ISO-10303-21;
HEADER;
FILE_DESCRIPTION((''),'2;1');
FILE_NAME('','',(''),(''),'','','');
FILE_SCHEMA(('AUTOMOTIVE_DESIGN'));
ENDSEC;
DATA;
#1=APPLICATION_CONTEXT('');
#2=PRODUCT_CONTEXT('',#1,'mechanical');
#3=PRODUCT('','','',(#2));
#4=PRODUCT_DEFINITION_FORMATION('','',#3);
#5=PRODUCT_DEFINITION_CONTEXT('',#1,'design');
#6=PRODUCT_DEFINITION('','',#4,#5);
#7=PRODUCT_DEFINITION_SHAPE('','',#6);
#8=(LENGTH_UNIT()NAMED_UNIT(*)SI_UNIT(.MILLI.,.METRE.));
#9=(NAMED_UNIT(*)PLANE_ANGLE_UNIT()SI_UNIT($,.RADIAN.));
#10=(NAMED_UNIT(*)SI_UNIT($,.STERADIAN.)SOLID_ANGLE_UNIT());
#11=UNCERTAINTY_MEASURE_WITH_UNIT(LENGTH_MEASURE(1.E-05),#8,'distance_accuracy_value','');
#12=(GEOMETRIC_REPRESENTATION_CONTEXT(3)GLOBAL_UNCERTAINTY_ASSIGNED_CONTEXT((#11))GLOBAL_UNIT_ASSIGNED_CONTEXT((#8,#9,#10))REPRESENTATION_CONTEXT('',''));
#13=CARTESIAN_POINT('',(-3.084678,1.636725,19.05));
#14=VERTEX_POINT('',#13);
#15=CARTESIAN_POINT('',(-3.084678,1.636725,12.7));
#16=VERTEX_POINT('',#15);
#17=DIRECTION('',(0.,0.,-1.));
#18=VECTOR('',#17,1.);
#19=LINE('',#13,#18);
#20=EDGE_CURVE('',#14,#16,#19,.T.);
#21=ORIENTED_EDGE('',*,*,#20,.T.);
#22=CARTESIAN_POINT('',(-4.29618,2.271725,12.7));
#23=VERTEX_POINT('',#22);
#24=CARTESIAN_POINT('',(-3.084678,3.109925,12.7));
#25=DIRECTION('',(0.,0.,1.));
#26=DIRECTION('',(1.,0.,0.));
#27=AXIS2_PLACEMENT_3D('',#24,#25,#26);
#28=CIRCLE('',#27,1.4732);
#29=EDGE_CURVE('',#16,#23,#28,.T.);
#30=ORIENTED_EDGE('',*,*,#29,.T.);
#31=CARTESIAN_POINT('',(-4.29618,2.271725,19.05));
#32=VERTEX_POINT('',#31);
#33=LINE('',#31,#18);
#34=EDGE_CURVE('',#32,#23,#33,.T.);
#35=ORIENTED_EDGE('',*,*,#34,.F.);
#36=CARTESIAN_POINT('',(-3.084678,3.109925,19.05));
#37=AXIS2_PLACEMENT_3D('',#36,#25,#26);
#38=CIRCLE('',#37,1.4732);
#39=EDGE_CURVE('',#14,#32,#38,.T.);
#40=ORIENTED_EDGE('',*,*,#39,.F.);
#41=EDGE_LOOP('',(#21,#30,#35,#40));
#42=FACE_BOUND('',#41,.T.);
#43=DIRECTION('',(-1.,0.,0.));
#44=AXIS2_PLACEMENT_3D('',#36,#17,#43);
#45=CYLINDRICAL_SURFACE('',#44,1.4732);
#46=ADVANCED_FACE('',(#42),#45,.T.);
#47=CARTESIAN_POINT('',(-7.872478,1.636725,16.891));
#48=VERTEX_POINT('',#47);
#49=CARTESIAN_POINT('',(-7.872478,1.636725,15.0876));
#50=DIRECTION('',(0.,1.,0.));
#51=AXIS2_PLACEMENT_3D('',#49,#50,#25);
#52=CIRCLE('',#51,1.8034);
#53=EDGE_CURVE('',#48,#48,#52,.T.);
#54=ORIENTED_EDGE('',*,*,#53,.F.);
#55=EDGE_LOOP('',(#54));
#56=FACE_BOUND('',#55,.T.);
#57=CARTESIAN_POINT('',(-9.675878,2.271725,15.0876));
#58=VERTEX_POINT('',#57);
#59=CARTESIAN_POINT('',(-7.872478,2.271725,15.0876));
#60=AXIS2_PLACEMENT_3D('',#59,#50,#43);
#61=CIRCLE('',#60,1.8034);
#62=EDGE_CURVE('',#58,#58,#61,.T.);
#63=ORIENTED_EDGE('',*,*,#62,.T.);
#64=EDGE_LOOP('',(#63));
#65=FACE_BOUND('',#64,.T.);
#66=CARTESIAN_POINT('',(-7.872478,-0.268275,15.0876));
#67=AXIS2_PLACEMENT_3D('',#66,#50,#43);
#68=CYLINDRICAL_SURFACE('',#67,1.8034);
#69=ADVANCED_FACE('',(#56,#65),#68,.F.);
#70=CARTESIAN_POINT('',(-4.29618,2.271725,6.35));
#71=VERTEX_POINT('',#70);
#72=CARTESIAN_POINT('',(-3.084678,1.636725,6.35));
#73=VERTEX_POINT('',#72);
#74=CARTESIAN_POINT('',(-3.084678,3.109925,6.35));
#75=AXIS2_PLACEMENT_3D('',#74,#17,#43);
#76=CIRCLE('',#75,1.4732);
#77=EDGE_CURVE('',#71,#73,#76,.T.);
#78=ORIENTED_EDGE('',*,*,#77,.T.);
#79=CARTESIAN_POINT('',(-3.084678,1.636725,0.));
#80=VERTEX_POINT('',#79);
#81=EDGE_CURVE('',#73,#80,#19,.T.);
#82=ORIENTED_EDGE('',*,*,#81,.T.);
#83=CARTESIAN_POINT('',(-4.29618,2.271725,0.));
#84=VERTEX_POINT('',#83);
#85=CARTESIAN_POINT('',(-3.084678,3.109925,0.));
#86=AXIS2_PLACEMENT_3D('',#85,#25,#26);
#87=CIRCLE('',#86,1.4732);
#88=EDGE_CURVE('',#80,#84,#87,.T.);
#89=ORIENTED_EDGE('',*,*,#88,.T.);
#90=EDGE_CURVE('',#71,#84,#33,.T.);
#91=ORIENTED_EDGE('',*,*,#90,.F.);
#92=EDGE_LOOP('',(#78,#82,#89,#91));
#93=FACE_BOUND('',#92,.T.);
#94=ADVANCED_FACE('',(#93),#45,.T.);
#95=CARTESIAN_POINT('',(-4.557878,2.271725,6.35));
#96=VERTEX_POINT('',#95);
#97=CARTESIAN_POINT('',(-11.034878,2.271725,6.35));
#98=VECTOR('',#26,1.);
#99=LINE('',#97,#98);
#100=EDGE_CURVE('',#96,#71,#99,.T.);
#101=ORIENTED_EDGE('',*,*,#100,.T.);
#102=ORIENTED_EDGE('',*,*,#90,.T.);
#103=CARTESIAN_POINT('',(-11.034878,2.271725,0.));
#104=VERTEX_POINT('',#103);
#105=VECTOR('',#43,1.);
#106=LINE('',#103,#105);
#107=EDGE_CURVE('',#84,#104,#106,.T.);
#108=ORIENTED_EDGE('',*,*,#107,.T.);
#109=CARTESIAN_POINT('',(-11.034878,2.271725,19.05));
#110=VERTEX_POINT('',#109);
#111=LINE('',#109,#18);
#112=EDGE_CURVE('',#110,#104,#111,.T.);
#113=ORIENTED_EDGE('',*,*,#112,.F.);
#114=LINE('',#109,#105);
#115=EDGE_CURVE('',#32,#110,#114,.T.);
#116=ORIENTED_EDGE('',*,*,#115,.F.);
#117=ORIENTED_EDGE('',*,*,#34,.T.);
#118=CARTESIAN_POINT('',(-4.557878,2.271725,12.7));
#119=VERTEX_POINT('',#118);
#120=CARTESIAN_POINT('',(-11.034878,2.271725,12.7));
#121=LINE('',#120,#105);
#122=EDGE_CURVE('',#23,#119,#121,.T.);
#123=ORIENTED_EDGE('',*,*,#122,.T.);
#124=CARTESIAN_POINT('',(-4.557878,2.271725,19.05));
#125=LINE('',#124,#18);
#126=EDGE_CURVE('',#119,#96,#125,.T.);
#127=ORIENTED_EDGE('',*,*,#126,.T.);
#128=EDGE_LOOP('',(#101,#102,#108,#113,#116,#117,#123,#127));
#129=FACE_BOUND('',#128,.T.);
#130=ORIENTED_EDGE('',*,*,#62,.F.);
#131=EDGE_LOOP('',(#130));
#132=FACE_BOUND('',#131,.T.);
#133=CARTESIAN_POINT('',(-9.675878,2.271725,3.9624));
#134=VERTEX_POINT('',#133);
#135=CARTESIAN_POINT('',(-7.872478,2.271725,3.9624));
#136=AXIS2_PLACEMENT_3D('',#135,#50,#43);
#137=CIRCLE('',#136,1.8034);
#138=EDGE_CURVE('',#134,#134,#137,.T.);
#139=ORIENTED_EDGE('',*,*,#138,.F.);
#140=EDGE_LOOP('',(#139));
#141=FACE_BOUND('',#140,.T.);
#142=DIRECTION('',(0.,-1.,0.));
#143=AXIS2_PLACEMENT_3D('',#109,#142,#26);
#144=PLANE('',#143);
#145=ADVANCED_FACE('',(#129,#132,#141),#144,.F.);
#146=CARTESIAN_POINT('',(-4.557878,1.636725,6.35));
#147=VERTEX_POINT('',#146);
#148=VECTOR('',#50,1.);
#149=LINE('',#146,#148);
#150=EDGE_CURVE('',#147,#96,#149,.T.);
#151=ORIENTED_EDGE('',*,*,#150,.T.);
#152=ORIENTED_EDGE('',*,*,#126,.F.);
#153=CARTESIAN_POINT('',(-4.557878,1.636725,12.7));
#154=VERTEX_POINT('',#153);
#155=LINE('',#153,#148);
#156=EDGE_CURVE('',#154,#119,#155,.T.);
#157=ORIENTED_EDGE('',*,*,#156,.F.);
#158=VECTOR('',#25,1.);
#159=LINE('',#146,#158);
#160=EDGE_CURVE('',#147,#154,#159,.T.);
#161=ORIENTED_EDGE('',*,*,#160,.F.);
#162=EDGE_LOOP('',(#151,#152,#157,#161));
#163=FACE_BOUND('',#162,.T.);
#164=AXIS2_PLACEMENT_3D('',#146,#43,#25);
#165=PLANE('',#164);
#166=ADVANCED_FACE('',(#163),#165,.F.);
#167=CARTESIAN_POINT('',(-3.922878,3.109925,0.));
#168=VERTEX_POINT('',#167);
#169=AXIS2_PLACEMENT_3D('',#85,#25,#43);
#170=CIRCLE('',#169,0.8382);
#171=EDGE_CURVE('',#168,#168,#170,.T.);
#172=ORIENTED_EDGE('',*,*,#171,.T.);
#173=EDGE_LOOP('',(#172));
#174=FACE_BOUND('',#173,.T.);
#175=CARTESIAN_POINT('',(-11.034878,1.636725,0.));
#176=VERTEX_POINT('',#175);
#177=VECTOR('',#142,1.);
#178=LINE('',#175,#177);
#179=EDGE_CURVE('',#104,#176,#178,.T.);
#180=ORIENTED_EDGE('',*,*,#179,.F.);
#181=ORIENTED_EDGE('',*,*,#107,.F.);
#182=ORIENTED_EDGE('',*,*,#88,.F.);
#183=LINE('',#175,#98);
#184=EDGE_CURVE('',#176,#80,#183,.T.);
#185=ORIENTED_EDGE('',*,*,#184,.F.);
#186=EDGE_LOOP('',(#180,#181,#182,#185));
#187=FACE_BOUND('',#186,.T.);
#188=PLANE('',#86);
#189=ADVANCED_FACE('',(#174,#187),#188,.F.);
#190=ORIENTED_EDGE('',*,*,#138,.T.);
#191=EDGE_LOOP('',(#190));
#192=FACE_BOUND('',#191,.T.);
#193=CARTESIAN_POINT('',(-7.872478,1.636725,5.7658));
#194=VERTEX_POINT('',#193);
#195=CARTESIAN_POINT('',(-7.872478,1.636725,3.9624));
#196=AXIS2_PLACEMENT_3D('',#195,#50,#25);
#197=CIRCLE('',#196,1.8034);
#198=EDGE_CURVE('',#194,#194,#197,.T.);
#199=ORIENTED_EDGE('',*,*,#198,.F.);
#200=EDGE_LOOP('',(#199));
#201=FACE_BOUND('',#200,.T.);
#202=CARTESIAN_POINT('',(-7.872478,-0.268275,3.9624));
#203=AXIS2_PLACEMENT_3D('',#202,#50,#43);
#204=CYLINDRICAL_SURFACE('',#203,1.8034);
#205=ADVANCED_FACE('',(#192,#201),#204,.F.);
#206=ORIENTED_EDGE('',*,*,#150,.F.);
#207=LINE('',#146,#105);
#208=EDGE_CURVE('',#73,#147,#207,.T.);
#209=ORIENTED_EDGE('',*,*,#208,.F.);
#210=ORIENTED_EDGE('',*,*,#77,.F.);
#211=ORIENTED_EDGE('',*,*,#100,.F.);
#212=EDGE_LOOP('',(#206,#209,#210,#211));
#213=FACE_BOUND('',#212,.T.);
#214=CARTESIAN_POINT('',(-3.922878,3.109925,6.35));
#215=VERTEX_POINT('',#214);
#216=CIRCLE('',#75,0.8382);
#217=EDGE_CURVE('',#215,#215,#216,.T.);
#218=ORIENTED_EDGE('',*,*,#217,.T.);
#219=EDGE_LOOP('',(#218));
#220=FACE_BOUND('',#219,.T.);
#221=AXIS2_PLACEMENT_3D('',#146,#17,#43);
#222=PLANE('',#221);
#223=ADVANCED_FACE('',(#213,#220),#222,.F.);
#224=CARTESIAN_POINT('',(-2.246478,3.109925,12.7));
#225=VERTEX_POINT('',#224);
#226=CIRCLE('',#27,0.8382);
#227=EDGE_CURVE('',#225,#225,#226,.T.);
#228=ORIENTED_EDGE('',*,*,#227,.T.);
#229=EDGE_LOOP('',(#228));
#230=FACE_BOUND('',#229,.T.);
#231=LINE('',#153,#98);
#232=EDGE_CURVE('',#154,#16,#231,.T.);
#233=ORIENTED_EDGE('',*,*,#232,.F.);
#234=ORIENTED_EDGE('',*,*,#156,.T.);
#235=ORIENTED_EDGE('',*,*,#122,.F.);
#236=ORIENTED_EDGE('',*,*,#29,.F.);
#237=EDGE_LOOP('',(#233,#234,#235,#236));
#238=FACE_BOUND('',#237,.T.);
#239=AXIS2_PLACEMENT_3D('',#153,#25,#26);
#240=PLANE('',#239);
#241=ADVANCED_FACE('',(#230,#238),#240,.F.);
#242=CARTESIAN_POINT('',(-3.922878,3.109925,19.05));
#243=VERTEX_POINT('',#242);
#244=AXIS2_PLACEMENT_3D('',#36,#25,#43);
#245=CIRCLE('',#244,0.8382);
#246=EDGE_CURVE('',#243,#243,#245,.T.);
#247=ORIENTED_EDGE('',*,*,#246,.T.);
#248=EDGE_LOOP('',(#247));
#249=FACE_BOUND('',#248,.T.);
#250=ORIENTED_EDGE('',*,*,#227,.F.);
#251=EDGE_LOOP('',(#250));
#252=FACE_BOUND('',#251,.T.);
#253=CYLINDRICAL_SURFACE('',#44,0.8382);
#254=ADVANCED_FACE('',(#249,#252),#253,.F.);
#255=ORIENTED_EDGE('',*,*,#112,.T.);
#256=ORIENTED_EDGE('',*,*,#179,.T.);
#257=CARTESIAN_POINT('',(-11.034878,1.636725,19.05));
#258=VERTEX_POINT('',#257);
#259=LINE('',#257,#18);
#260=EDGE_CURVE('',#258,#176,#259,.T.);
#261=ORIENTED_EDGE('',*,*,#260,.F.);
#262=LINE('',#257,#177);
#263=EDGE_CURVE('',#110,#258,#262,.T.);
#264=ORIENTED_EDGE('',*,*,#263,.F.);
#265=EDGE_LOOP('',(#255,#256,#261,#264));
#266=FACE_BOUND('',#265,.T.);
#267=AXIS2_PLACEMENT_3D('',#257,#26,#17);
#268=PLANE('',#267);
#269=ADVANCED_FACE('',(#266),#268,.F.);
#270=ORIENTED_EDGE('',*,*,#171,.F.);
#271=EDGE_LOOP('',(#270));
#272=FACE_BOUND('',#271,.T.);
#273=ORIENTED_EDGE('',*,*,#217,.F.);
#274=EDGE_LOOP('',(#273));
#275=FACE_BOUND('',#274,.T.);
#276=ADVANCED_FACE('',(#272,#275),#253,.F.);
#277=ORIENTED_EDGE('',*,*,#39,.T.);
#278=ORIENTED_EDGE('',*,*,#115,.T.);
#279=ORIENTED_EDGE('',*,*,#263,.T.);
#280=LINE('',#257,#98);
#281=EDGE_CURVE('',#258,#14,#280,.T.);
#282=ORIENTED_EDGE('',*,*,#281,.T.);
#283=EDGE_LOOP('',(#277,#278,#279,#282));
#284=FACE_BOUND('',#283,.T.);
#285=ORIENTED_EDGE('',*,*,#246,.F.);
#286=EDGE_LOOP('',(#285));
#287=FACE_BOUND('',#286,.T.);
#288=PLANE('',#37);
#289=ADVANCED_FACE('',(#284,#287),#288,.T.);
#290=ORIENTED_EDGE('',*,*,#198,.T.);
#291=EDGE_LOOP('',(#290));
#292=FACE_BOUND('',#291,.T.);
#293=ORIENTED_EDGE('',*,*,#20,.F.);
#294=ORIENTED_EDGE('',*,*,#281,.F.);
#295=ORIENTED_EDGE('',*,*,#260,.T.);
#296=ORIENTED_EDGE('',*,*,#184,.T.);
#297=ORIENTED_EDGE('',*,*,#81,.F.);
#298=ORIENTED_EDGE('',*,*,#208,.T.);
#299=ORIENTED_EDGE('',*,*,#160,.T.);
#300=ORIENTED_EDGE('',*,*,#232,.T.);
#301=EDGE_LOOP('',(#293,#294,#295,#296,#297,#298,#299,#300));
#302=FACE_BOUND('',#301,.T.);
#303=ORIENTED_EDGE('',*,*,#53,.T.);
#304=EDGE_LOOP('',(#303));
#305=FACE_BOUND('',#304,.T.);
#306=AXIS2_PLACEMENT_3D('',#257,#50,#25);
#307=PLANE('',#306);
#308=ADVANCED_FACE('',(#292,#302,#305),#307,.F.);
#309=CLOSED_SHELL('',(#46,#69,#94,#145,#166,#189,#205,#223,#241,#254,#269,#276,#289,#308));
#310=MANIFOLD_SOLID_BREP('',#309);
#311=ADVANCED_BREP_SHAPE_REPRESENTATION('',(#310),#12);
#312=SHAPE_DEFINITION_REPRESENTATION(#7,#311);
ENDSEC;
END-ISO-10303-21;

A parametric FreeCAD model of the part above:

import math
import FreeCAD as App
import Part
import Sketcher
from FreeCAD import Vector
Q = App.Units.Quantity


def add_polygon(sketch, points):
    """Adds a closed chain of lines whose ends are joined by coincident constraints."""
    first, n = sketch.GeometryCount, len(points)
    for a, b in zip(points, points[1:] + points[:1]):
        sketch.addGeometry(Part.LineSegment(App.Vector(*a, 0), App.Vector(*b, 0)), False)
    for i in range(n):
        sketch.addConstraint(Sketcher.Constraint("Coincident", first + i, 2, first + (i + 1) % n, 1))

doc = App.newDocument("Part")
params = doc.addObject("Spreadsheet::Sheet", "Params")
for row, (alias, value) in enumerate([
    ("sketch1_diameter", "0.066 in"),
    ("sketch1_radius", "0.058 in"),
    ("sketch1_width", "0.313 in"),
    ("sketch1_height", "0.025 in"),
    ("pad1_length", "0.75 in"),
    ("sketch2_diameter", "0.142 in"),
    ("pocket1_length", "0.1 in"),
    ("sketch3_height", "0.25 in"),
    ("sketch3_width", "0.116 in"),
], start=1):
    params.set(f"A{row}", alias)
    params.set(f"B{row}", "=" + value)
    params.setAlias(f"B{row}", alias)

body = doc.addObject("PartDesign::Body", "Body")

# Sketch on XY plane
sketch1 = doc.addObject("Sketcher::SketchObject", "Sketch")
body.addObject(sketch1)
sketch1.AttachmentSupport = (doc.XY_Plane, [""])
sketch1.MapMode = "FlatFace"
sketch1.addGeometry([
    Part.LineSegment(Vector(-11, 2.3, 0), Vector(-11, 1.6, 0)),  # 0
    Part.LineSegment(Vector(-11, 1.6, 0), Vector(-3.1, 1.6, 0)),  # 1
    Part.ArcOfCircle(Part.Circle(Vector(-3.1, 3.1, 0), Vector(0, 0, 1), 1.5), math.radians(-90), math.radians(215)),  # 2
    Part.LineSegment(Vector(-4.3, 2.3, 0), Vector(-11, 2.3, 0)),  # 3
    Part.Circle(Vector(-3.1, 3.1, 0), Vector(0, 0, 1), 0.8),  # 4
], False)
sketch1.addConstraint([
    Sketcher.Constraint("Coincident", 0, 2, 1, 1),
    Sketcher.Constraint("Tangent", 1, 2, 2, 1),
    Sketcher.Constraint("Coincident", 2, 2, 3, 1),
    Sketcher.Constraint("Coincident", 3, 2, 0, 1),
    Sketcher.Constraint("Vertical", 0),
    Sketcher.Constraint("Horizontal", 1),
    Sketcher.Constraint("Horizontal", 3),
    Sketcher.Constraint("Coincident", 4, 3, 2, 3),
    Sketcher.Constraint("Diameter", 4, Q("0.066 in")),
    Sketcher.Constraint("Radius", 2, Q("0.058 in")),
    Sketcher.Constraint("DistanceX", 1, 1, 1, 2, Q("0.313 in")),
    Sketcher.Constraint("DistanceY", 0, 2, 0, 1, Q("0.025 in")),
    Sketcher.Constraint("DistanceX", 2, 2, -1, 1, Q("4.29618 mm")),
    Sketcher.Constraint("DistanceY", -1, 1, 2, 3, Q("3.109925 mm")),
])
sketch1.setExpression("Constraints[8]", "Params.sketch1_diameter")
sketch1.setExpression("Constraints[9]", "Params.sketch1_radius")
sketch1.setExpression("Constraints[10]", "Params.sketch1_width")
sketch1.setExpression("Constraints[11]", "Params.sketch1_height")
pad1 = doc.addObject("PartDesign::Pad", "Pad")
body.addObject(pad1)
pad1.Profile = sketch1
pad1.setExpression("Length", "Params.pad1_length")

# Sketch on XZ plane
sketch2 = doc.addObject("Sketcher::SketchObject", "Sketch001")
body.addObject(sketch2)
sketch2.AttachmentSupport = (doc.XZ_Plane, [""])
sketch2.MapMode = "FlatFace"
sketch2.AttachmentOffset = App.Placement(Vector(0, 0, -2.271725), App.Rotation())
sketch2.addGeometry([
    Part.Circle(Vector(-7.9, 4, 0), Vector(0, 0, 1), 1.8),
    Part.Circle(Vector(-7.9, 15.1, 0), Vector(0, 0, 1), 1.8),
], False)
sketch2.addConstraint([
    Sketcher.Constraint("Equal", 0, 1),
    Sketcher.Constraint("Vertical", 0, 3, 1, 3),
    Sketcher.Constraint("Diameter", 0, Q("0.142 in")),
    Sketcher.Constraint("DistanceY", -1, 1, 0, 3, Q("0.156 in")),
    Sketcher.Constraint("DistanceY", -1, 1, 1, 3, Q("0.594 in")),
    Sketcher.Constraint("DistanceX", 0, 3, -1, 1, Q("7.872478 mm")),
])
sketch2.setExpression("Constraints[2]", "Params.sketch2_diameter")
pocket1 = doc.addObject("PartDesign::Pocket", "Pocket")
body.addObject(pocket1)
pocket1.Profile = sketch2
pocket1.setExpression("Length", "Params.pocket1_length")
pocket1.Reversed = True

# Sketch on XZ plane
sketch3 = doc.addObject("Sketcher::SketchObject", "Sketch002")
body.addObject(sketch3)
sketch3.AttachmentSupport = (doc.XZ_Plane, [""])
sketch3.MapMode = "FlatFace"
sketch3.AttachmentOffset = App.Placement(Vector(0, 0, -2.271725), App.Rotation())
add_polygon(sketch3, [(-4.6, 6.3), (-4.6, 12.7), (-1.6, 12.7), (-1.6, 6.3)])  # lines 0-3
sketch3.addConstraint([
    Sketcher.Constraint("Vertical", 0),
    Sketcher.Constraint("Horizontal", 1),
    Sketcher.Constraint("Vertical", 2),
    Sketcher.Constraint("Horizontal", 3),
    Sketcher.Constraint("DistanceY", 0, 1, 0, 2, Q("0.25 in")),
    Sketcher.Constraint("DistanceY", -1, 1, 0, 2, Q("0.5 in")),
    Sketcher.Constraint("DistanceX", 1, 1, 1, 2, Q("0.116 in")),
    Sketcher.Constraint("DistanceX", 0, 2, -1, 1, Q("4.557878 mm")),
])
sketch3.setExpression("Constraints[8]", "Params.sketch3_height")
sketch3.setExpression("Constraints[10]", "Params.sketch3_width")
pocket2 = doc.addObject("PartDesign::Pocket", "Pocket001")
body.addObject(pocket2)
pocket2.Profile = sketch3
pocket2.Type = "ThroughAll"
pocket2.Midplane = True

doc.recompute()
